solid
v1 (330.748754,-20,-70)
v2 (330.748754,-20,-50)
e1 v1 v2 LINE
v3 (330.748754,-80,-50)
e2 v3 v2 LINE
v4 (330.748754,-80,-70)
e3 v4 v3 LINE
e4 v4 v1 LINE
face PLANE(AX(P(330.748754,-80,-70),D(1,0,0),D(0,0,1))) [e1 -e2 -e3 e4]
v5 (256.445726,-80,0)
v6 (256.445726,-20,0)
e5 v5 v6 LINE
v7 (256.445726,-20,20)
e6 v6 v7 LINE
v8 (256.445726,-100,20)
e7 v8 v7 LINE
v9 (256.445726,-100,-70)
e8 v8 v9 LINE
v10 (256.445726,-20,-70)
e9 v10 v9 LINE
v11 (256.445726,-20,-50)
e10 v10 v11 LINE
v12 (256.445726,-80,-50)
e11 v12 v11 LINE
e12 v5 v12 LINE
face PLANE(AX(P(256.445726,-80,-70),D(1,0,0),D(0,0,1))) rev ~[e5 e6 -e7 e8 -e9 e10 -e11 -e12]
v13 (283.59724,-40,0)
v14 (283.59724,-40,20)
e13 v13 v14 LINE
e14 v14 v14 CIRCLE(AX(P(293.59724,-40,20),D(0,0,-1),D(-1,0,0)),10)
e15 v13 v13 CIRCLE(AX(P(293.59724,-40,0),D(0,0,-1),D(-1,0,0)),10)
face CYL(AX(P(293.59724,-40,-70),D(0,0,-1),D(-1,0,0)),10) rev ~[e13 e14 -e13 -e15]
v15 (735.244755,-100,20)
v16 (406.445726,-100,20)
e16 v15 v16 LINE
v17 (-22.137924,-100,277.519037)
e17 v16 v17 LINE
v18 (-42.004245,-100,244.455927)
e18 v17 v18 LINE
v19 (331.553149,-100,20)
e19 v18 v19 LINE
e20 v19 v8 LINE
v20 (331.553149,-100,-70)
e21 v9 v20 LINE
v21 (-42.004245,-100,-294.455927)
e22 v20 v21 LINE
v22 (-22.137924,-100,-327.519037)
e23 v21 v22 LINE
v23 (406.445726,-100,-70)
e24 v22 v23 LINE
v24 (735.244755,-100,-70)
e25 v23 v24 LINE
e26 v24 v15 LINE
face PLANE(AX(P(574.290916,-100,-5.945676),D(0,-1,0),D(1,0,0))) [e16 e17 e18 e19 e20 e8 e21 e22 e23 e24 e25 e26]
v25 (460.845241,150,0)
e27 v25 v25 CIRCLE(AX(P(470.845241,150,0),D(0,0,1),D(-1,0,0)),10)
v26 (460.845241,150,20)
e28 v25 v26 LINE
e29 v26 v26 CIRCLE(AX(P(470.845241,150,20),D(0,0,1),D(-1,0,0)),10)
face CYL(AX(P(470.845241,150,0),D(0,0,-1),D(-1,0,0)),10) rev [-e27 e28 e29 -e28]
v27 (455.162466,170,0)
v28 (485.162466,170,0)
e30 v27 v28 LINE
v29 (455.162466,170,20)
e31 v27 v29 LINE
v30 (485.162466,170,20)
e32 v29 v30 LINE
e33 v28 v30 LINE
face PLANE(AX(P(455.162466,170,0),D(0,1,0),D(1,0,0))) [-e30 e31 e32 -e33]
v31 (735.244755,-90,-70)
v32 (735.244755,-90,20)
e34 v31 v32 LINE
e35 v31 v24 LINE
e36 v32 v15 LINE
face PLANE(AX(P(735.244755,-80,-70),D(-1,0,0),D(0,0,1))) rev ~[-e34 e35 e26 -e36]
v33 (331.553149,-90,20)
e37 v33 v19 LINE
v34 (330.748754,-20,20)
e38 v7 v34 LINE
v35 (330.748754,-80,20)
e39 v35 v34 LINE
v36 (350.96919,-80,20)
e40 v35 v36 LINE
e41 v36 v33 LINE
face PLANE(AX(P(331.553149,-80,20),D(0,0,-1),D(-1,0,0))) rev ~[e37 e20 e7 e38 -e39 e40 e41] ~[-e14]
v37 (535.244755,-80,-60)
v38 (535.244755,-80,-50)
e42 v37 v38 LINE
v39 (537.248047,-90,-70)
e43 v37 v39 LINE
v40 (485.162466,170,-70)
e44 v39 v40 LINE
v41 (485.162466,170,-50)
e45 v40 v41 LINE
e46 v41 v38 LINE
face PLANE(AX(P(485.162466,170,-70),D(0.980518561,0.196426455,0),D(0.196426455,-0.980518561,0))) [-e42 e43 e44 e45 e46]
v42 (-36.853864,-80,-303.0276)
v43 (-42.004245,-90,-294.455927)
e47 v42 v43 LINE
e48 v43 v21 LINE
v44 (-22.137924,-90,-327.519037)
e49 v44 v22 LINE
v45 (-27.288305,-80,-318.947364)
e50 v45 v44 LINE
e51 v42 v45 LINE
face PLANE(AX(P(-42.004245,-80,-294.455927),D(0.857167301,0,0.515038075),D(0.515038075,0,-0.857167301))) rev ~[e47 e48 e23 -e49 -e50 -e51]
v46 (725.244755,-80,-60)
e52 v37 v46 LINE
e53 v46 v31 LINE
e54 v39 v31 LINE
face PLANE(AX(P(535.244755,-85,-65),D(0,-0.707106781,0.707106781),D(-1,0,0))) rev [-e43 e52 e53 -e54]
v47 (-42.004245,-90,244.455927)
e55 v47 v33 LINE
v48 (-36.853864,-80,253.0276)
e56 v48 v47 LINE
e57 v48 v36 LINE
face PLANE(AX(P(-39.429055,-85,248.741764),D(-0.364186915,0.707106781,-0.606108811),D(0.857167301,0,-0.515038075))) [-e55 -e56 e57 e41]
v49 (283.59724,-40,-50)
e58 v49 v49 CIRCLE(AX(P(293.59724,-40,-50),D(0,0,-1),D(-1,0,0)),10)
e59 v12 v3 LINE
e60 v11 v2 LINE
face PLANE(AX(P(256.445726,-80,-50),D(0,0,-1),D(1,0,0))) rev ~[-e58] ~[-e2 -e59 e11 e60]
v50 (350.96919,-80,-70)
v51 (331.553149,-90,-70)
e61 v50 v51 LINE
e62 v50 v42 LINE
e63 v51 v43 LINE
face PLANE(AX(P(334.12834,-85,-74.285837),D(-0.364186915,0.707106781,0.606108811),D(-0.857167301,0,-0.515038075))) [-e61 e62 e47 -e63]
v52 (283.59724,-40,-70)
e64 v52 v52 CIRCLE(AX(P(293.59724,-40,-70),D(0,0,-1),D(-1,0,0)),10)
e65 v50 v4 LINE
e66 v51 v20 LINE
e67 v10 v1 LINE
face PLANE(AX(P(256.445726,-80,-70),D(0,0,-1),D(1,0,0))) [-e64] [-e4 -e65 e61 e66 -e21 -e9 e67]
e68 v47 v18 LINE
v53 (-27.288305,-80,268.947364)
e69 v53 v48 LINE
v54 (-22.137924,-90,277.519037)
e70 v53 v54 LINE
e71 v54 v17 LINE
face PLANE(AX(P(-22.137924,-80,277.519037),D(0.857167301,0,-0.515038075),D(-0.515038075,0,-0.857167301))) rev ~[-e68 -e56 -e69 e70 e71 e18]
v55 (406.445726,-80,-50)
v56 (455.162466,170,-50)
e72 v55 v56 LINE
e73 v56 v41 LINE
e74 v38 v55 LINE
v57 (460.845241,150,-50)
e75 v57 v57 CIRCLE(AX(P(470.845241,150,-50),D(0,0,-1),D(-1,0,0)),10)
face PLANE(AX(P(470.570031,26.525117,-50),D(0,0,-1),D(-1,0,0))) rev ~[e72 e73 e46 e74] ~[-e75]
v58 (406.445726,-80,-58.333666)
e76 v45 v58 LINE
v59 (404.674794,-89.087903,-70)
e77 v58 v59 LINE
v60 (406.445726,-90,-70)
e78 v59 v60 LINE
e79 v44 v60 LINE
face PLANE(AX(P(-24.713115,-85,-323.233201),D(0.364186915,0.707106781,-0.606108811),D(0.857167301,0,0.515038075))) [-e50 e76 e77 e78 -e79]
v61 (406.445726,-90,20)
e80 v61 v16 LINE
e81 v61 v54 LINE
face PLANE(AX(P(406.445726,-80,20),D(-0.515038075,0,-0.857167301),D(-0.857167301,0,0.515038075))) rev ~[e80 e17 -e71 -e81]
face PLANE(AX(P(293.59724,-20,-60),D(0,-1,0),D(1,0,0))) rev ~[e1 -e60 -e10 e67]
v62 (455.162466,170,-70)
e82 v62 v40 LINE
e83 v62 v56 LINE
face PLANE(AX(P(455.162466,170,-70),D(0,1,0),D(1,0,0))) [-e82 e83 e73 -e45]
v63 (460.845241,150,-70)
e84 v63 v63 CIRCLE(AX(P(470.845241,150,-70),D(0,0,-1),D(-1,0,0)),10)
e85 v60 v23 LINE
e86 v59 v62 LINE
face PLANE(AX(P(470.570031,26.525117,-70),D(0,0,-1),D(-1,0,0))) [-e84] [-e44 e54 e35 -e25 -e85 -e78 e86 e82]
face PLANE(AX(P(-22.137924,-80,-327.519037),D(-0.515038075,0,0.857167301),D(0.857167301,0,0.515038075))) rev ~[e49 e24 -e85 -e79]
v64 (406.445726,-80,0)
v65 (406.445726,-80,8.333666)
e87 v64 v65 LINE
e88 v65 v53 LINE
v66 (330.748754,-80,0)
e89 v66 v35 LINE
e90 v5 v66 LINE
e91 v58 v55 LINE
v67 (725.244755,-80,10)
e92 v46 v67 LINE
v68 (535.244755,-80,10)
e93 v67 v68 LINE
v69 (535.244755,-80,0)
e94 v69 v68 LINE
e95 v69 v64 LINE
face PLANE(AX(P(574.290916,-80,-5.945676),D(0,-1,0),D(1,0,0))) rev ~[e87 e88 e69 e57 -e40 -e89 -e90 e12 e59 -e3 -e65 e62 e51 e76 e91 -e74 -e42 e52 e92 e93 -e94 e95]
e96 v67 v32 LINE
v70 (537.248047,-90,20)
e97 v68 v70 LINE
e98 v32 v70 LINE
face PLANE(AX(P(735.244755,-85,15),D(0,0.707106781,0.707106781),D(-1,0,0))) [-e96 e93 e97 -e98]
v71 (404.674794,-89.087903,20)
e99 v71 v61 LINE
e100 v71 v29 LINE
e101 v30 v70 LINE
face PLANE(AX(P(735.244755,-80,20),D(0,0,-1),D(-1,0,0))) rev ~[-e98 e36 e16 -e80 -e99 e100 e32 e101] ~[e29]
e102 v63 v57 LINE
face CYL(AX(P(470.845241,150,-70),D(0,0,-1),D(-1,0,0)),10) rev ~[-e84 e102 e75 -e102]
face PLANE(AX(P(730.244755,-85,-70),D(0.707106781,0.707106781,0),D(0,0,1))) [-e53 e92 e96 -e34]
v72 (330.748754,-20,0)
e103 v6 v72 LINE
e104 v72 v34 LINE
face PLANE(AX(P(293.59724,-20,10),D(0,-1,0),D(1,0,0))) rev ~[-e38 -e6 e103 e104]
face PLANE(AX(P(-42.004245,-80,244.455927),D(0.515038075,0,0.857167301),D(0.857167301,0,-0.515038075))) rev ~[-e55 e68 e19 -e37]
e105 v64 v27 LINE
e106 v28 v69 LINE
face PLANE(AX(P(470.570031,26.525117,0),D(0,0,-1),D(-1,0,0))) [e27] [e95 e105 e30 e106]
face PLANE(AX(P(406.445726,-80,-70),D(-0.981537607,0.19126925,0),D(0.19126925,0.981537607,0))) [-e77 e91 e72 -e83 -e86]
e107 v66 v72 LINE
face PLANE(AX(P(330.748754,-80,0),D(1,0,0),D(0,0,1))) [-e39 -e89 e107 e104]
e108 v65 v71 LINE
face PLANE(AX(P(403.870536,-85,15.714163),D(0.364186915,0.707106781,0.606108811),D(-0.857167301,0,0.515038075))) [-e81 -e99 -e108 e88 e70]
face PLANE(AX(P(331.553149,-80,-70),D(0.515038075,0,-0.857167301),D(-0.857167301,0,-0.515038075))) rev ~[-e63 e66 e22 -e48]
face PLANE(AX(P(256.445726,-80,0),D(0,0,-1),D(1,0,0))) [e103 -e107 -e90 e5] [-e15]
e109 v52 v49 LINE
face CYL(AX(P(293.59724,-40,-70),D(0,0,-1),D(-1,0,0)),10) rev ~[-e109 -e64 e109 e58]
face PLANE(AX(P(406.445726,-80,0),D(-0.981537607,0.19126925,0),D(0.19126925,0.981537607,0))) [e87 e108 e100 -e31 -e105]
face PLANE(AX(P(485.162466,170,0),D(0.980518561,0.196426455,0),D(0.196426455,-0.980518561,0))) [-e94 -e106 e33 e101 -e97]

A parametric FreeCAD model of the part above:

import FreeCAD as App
import Part
import Sketcher
from FreeCAD import Vector
Q = App.Units.Quantity


def edges_at(feature, points):
    """Names of the edges that pass closest to the given points."""
    edges = feature.Shape.Edges
    near = lambda p: min(range(len(edges)), key=lambda i: edges[i].distToShape(Part.Vertex(*p))[0])
    return sorted({f"Edge{near(p) + 1}" for p in points})


def add_polygon(sketch, points):
    """Adds a closed chain of lines whose ends are joined by coincident constraints."""
    first, n = sketch.GeometryCount, len(points)
    for a, b in zip(points, points[1:] + points[:1]):
        sketch.addGeometry(Part.LineSegment(App.Vector(*a, 0), App.Vector(*b, 0)), False)
    for i in range(n):
        sketch.addConstraint(Sketcher.Constraint("Coincident", first + i, 2, first + (i + 1) % n, 1))

doc = App.newDocument("Part")
body = doc.addObject("PartDesign::Body", "Body")

# Sketch on XY plane
sketch1 = body.newObject("Sketcher::SketchObject", "Sketch")
sketch1.AttachmentSupport = (doc.getObject("XY_Plane"), [""])
sketch1.MapMode = "FlatFace"
add_polygon(sketch1, [(485, 170), (455, 170), (406, -80), (535, -80)])  # lines 0-3
sketch1.addGeometry(Part.Circle(Vector(471, 150, 0), Vector(0, 0, 1), 10), False)  # 4
sketch1.addConstraint([
    Sketcher.Constraint("Horizontal", 0),
    Sketcher.Constraint("Horizontal", 2),
    Sketcher.Constraint("Diameter", 4, 20.0),
    Sketcher.Constraint("DistanceX", 0, 2, 0, 1, 30.0),
    Sketcher.Constraint("DistanceY", -1, 1, 4, 3, 150.0),
    Sketcher.Constraint("DistanceY", -1, 1, 0, 2, 170.0),
    Sketcher.Constraint("DistanceY", 1, 2, -1, 1, 80.0),
    Sketcher.Constraint("DistanceX", 2, 1, 2, 2, 128.799029),
    Sketcher.Constraint("DistanceX", -1, 1, 4, 3, 470.845241),
    Sketcher.Constraint("DistanceX", 1, 2, 0, 2, 48.71674),
    Sketcher.Constraint("DistanceX", -1, 1, 0, 2, 455.162466),
])
pad1 = body.newObject("PartDesign::Pad", "Pad")
pad1.Profile = sketch1
pad1.Length = 20

# Sketch on XZ plane
sketch2 = body.newObject("Sketcher::SketchObject", "Sketch001")
sketch2.AttachmentSupport = (doc.getObject("XZ_Plane"), [""])
sketch2.MapMode = "FlatFace"
sketch2.AttachmentOffset = App.Placement(Vector(0, 0, 80), App.Rotation())
add_polygon(sketch2, [(735, 20), (406, 20), (-22, 278), (-42, 244), (332, 20), (256, 20), (256, -70), (332, -70), (-42, -294), (-22, -328), (406, -70), (735, -70)])  # lines 0-11
sketch2.addConstraint([
    Sketcher.Constraint("Horizontal", 0),
    Sketcher.Constraint("Horizontal", 4),
    Sketcher.Constraint("Vertical", 5),
    Sketcher.Constraint("Horizontal", 6),
    Sketcher.Constraint("Horizontal", 10),
    Sketcher.Constraint("Vertical", 11),
    Sketcher.Constraint("Perpendicular", 1, 2),
    Sketcher.Constraint("Perpendicular", 2, 3),
    Sketcher.Constraint("Perpendicular", 7, 8),
    Sketcher.Constraint("Perpendicular", 8, 9),
    Sketcher.Constraint("Horizontal", 0, 2, 3, 2),
    Sketcher.Constraint("Horizontal", 6, 2, 9, 2),
    Sketcher.Constraint("Vertical", 3, 2, 6, 2),
    Sketcher.Constraint("Vertical", 2, 2, 7, 2),
    Sketcher.Constraint("Vertical", 1, 2, 8, 2),
    Sketcher.Constraint("Vertical", 0, 2, 9, 2),
    Sketcher.Constraint("DistanceY", 5, 2, 5, 1, 90.0),
    Sketcher.Constraint("Angle", 1, Q("149 deg")),
    Sketcher.Constraint("Distance", 1, 500.0),
    Sketcher.Constraint("DistanceY", -1, 1, 0, 2, 20.0),
    Sketcher.Constraint("DistanceX", 4, 2, 0, 2, 150.0),
    Sketcher.Constraint("DistanceX", 0, 2, 0, 1, 328.799029),
    Sketcher.Constraint("Distance", 2, 38.572529),
    Sketcher.Constraint("DistanceX", -1, 1, 3, 2, 331.553149),
])
pad2 = body.newObject("PartDesign::Pad", "Pad001")
pad2.Profile = sketch2
pad2.Length = 20

# Sketch on XY plane
sketch3 = body.newObject("Sketcher::SketchObject", "Sketch002")
sketch3.AttachmentSupport = (doc.getObject("XY_Plane"), [""])
sketch3.MapMode = "FlatFace"
sketch3.AttachmentOffset = App.Placement(Vector(0, 0, -70), App.Rotation())
add_polygon(sketch3, [(406, -80), (455, 170), (485, 170), (535, -80)])  # lines 0-3
sketch3.addGeometry(Part.Circle(Vector(471, 150, 0), Vector(0, 0, 1), 10), False)  # 4
sketch3.addConstraint([
    Sketcher.Constraint("Horizontal", 1),
    Sketcher.Constraint("Horizontal", 3),
    Sketcher.Constraint("Diameter", 4, 20.0),
    Sketcher.Constraint("DistanceX", 1, 1, 1, 2, 30.0),
    Sketcher.Constraint("DistanceY", -1, 1, 4, 3, 150.0),
    Sketcher.Constraint("DistanceY", -1, 1, 0, 2, 170.0),
    Sketcher.Constraint("DistanceY", 2, 2, -1, 1, 80.0),
    Sketcher.Constraint("DistanceX", 3, 2, 3, 1, 128.799029),
    Sketcher.Constraint("DistanceX", -1, 1, 4, 3, 470.845241),
    Sketcher.Constraint("DistanceX", 1, 2, 2, 2, 50.082289),
    Sketcher.Constraint("DistanceX", -1, 1, 0, 2, 455.162466),
])
pad3 = body.newObject("PartDesign::Pad", "Pad002")
pad3.Profile = sketch3
pad3.Length = 20
doc.recompute()

chamfer = body.newObject("PartDesign::Chamfer", "Chamfer")
chamfer.Base = (pad3, edges_at(pad3, [
    (192.154, -80, 148.76),
    (144.774, -80, -182.228),
    (192.154, -80, -198.76),
    (144.774, -80, 132.228),
]))
chamfer.Size = 10

# Sketch on XZ plane
sketch4 = body.newObject("Sketcher::SketchObject", "Sketch003")
sketch4.AttachmentSupport = (doc.getObject("XZ_Plane"), [""])
sketch4.MapMode = "FlatFace"
sketch4.AttachmentOffset = App.Placement(Vector(0, 0, 80), App.Rotation())
add_polygon(sketch4, [(256, -50), (256, -70), (331, -70), (331, -50)])  # lines 0-3
add_polygon(sketch4, [(256, 20), (256, 0), (331, 0), (331, 20)])  # lines 4-7
sketch4.addConstraint([
    Sketcher.Constraint("Vertical", 0),
    Sketcher.Constraint("Horizontal", 1),
    Sketcher.Constraint("Vertical", 2),
    Sketcher.Constraint("Horizontal", 3),
    Sketcher.Constraint("Vertical", 4),
    Sketcher.Constraint("Horizontal", 5),
    Sketcher.Constraint("Vertical", 6),
    Sketcher.Constraint("Horizontal", 7),
    Sketcher.Constraint("PointOnObject", 4, 2, -1),
    Sketcher.Constraint("Vertical", 3, 2, 4, 2),
    Sketcher.Constraint("Vertical", 2, 2, 5, 2),
    Sketcher.Constraint("Equal", 2, 4),
    Sketcher.Constraint("DistanceY", 0, 2, 0, 1, 20.0),
    Sketcher.Constraint("DistanceY", 0, 2, -1, 1, 70.0),
    Sketcher.Constraint("DistanceX", 1, 1, 1, 2, 74.303028),
    Sketcher.Constraint("DistanceX", -1, 1, 0, 2, 256.445726),
])
pad4 = body.newObject("PartDesign::Pad", "Pad003")
pad4.Profile = sketch4
pad4.Length = 60
pad4.Reversed = True

# Sketch on XY plane
sketch5 = body.newObject("Sketcher::SketchObject", "Sketch004")
sketch5.AttachmentSupport = (doc.getObject("XY_Plane"), [""])
sketch5.MapMode = "FlatFace"
sketch5.AttachmentOffset = App.Placement(Vector(0, 0, -70), App.Rotation())
sketch5.addGeometry(Part.Circle(Vector(294, -40, 0), Vector(0, 0, 1), 10), False)
sketch5.addConstraint([
    Sketcher.Constraint("Diameter", 0, 20.0),
    Sketcher.Constraint("DistanceY", 0, 3, -1, 1, 40.0),
    Sketcher.Constraint("DistanceX", -1, 1, 0, 3, 293.59724),
])
pocket1 = body.newObject("PartDesign::Pocket", "Pocket")
pocket1.Profile = sketch5
pocket1.Type = "ThroughAll"
pocket1.Reversed = True
doc.recompute()

chamfer2 = body.newObject("PartDesign::Chamfer", "Chamfer001")
chamfer2.Base = (pocket1, edges_at(pocket1, [(635.245, -80, 20), (735.245, -80, -25), (635.245, -80, -70)]))
chamfer2.Size = 10

doc.recompute()
